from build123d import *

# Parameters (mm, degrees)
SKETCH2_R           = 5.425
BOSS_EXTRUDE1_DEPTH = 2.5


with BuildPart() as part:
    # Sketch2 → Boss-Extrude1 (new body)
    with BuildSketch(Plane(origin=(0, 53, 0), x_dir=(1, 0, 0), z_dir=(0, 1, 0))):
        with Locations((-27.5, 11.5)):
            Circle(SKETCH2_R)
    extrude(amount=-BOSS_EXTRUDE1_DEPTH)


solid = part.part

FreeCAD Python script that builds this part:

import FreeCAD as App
import Part
import Sketcher
from FreeCAD import Vector
Q = App.Units.Quantity

doc = App.newDocument("Part")
params = doc.addObject("Spreadsheet::Sheet", "Params")
for row, (alias, value) in enumerate([
    ("sketch1_diameter", "10.85 mm"),
    ("pad1_length", "2.5 mm"),
], start=1):
    params.set(f"A{row}", alias)
    params.set(f"B{row}", "=" + value)
    params.setAlias(f"B{row}", alias)

body = doc.addObject("PartDesign::Body", "Body")

# Sketch on XZ plane
sketch1 = doc.addObject("Sketcher::SketchObject", "Sketch")
body.addObject(sketch1)
sketch1.AttachmentSupport = (doc.XZ_Plane, [""])
sketch1.MapMode = "FlatFace"
sketch1.AttachmentOffset = App.Placement(Vector(0, 0, -53), App.Rotation())
sketch1.addGeometry(Part.Circle(Vector(-28, -12, 0), Vector(0, 0, 1), 5), False)
sketch1.addConstraint([
    Sketcher.Constraint("Diameter", 0, Q("10.85 mm")),
    Sketcher.Constraint("DistanceX", 0, 3, -1, 1, Q("27.5 mm")),
    Sketcher.Constraint("DistanceY", 0, 3, -1, 1, Q("11.5 mm")),
])
sketch1.setExpression("Constraints[0]", "Params.sketch1_diameter")
pad1 = doc.addObject("PartDesign::Pad", "Pad")
body.addObject(pad1)
pad1.Profile = sketch1
pad1.setExpression("Length", "Params.pad1_length")

doc.recompute()
